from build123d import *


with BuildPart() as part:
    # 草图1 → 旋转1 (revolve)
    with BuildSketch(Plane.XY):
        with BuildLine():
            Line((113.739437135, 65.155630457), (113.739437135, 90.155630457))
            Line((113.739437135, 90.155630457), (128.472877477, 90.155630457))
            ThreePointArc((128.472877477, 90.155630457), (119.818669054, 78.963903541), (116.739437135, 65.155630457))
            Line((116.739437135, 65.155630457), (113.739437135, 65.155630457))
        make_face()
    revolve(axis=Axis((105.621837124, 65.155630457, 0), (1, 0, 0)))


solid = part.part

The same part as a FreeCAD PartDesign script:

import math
import FreeCAD as App
import Part
import Sketcher
Q = App.Units.Quantity

doc = App.newDocument("Part")
params = doc.addObject("Spreadsheet::Sheet", "Params")
for row, (alias, value) in enumerate([
    ("sketch1_radius", "32.5 mm"),
    ("sketch1_width", "3 mm"),
    ("sketch1_height", "25 mm"),
    ("revolution_angle", "360 deg"),
], start=1):
    params.set(f"A{row}", alias)
    params.set(f"B{row}", "=" + value)
    params.setAlias(f"B{row}", alias)

body = doc.addObject("PartDesign::Body", "Body")

# Sketch on XY plane
sketch1 = body.newObject("Sketcher::SketchObject", "Sketch")
sketch1.AttachmentSupport = (doc.getObject("XY_Plane"), [""])
sketch1.MapMode = "FlatFace"
sketch1.addGeometry(Part.LineSegment(App.Vector(113.7, 90.2, 0), App.Vector(113.7, 65.2, 0)), False)
sketch1.addGeometry(Part.LineSegment(App.Vector(113.7, 65.2, 0), App.Vector(116.7, 65.2, 0)), False)
sketch1.addGeometry(Part.ArcOfCircle(Part.Circle(App.Vector(149.2, 65.2, 0), App.Vector(0, 0, 1), 32.5), math.radians(130), math.radians(180)), False)
sketch1.addGeometry(Part.LineSegment(App.Vector(128.5, 90.2, 0), App.Vector(113.7, 90.2, 0)), False)
sketch1.addGeometry(Part.LineSegment(App.Vector(113.7, 65.2, 0), App.Vector(149.2, 65.2, 0)), True)  # axis
sketch1.addConstraint(Sketcher.Constraint("Coincident", 0, 2, 1, 1))
sketch1.addConstraint(Sketcher.Constraint("Coincident", 1, 2, 2, 2))
sketch1.addConstraint(Sketcher.Constraint("Coincident", 2, 1, 3, 1))
sketch1.addConstraint(Sketcher.Constraint("Coincident", 3, 2, 0, 1))
sketch1.addConstraint(Sketcher.Constraint("Vertical", 0))
sketch1.addConstraint(Sketcher.Constraint("Horizontal", 1))
sketch1.addConstraint(Sketcher.Constraint("Horizontal", 3))
sketch1.addConstraint(Sketcher.Constraint("Horizontal", 4))
sketch1.addConstraint(Sketcher.Constraint("Coincident", 4, 1, 0, 2))
sketch1.addConstraint(Sketcher.Constraint("Coincident", 4, 2, 2, 3))
sketch1.addConstraint(Sketcher.Constraint("Radius", 2, Q("32.5 mm")))
sketch1.addConstraint(Sketcher.Constraint("DistanceX", 1, 1, 1, 2, Q("3 mm")))
sketch1.addConstraint(Sketcher.Constraint("DistanceY", 0, 2, 0, 1, Q("25 mm")))
sketch1.addConstraint(Sketcher.Constraint("DistanceY", -1, 1, 2, 3, Q("65.15563 mm")))
sketch1.addConstraint(Sketcher.Constraint("DistanceX", -1, 1, 2, 3, Q("149.239437 mm")))
sketch1.setExpression("Constraints[10]", "Params.sketch1_radius")
sketch1.setExpression("Constraints[11]", "Params.sketch1_width")
sketch1.setExpression("Constraints[12]", "Params.sketch1_height")
revolution = body.newObject("PartDesign::Revolution", "Revolution")
revolution.Profile = sketch1
revolution.ReferenceAxis = (sketch1, ["Axis0"])
revolution.setExpression("Angle", "Params.revolution_angle")

doc.recompute()
